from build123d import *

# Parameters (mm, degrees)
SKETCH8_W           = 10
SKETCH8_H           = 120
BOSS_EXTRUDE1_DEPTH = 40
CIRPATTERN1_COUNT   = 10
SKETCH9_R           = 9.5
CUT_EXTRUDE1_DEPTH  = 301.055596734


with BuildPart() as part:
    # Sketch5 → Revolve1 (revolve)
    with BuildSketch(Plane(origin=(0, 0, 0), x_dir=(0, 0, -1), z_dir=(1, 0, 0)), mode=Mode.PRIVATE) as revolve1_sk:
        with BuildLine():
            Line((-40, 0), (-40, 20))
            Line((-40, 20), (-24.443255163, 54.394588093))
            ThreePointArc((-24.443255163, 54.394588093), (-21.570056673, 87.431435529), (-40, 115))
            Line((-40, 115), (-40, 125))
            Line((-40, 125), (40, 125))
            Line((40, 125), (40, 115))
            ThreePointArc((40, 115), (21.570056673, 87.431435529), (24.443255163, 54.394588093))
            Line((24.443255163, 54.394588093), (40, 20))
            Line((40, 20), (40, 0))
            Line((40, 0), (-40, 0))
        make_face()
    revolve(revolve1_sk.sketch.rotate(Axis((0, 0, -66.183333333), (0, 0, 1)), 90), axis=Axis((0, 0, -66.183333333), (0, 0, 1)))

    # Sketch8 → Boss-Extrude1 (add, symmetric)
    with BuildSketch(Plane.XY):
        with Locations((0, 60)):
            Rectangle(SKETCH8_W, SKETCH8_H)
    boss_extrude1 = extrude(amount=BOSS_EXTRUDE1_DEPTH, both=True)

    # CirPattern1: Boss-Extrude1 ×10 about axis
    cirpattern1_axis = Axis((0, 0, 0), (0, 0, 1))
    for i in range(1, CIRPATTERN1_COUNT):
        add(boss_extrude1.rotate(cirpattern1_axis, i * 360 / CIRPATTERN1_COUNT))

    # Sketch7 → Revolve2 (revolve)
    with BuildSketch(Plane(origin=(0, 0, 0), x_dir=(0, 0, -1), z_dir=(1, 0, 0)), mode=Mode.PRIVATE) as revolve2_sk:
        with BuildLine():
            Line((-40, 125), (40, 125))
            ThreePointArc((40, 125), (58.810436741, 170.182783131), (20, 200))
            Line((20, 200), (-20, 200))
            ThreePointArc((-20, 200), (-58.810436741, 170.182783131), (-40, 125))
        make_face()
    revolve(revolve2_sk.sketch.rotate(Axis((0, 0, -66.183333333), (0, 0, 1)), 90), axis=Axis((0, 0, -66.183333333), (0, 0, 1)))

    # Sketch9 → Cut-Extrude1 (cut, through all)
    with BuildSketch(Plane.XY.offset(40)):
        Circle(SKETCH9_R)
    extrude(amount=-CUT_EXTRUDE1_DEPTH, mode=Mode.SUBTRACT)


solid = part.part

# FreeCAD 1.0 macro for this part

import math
import FreeCAD as App
import Part
import Sketcher
Q = App.Units.Quantity


def add_polygon(sketch, points):
    """Adds a closed chain of lines whose ends are joined by coincident constraints."""
    first, n = sketch.GeometryCount, len(points)
    for a, b in zip(points, points[1:] + points[:1]):
        sketch.addGeometry(Part.LineSegment(App.Vector(*a, 0), App.Vector(*b, 0)), False)
    for i in range(n):
        sketch.addConstraint(Sketcher.Constraint("Coincident", first + i, 2, first + (i + 1) % n, 1))

doc = App.newDocument("Part")
body = doc.addObject("PartDesign::Body", "Body")

# Sketch on YZ plane
sketch1 = doc.addObject("Sketcher::SketchObject", "Sketch")
body.addObject(sketch1)
sketch1.AttachmentSupport = (doc.YZ_Plane, [""])
sketch1.MapMode = "FlatFace"
sketch1.addGeometry(Part.LineSegment(App.Vector(20, 40, 0), App.Vector(0, 40, 0)), False)
sketch1.addGeometry(Part.LineSegment(App.Vector(0, 40, 0), App.Vector(0, -40, 0)), False)
sketch1.addGeometry(Part.LineSegment(App.Vector(0, -40, 0), App.Vector(20, -40, 0)), False)
sketch1.addGeometry(Part.LineSegment(App.Vector(20, -40, 0), App.Vector(54, -24, 0)), False)
sketch1.addGeometry(Part.ArcOfCircle(Part.Circle(App.Vector(75, -70, 0), App.Vector(0, 0, 1), 50), math.radians(37), math.radians(114)), False)
sketch1.addGeometry(Part.LineSegment(App.Vector(115, -40, 0), App.Vector(125, -40, 0)), False)
sketch1.addGeometry(Part.LineSegment(App.Vector(125, -40, 0), App.Vector(125, 40, 0)), False)
sketch1.addGeometry(Part.LineSegment(App.Vector(125, 40, 0), App.Vector(115, 40, 0)), False)
sketch1.addGeometry(Part.ArcOfCircle(Part.Circle(App.Vector(75, 70, 0), App.Vector(0, 0, 1), 50), math.radians(-114), math.radians(-37)), False)
sketch1.addGeometry(Part.LineSegment(App.Vector(54, 24, 0), App.Vector(20, 40, 0)), False)
sketch1.addConstraint(Sketcher.Constraint("Coincident", 0, 2, 1, 1))
sketch1.addConstraint(Sketcher.Constraint("Coincident", 1, 2, 2, 1))
sketch1.addConstraint(Sketcher.Constraint("Coincident", 2, 2, 3, 1))
sketch1.addConstraint(Sketcher.Constraint("Tangent", 3, 2, 4, 2))
sketch1.addConstraint(Sketcher.Constraint("Coincident", 4, 1, 5, 1))
sketch1.addConstraint(Sketcher.Constraint("Coincident", 5, 2, 6, 1))
sketch1.addConstraint(Sketcher.Constraint("Coincident", 6, 2, 7, 1))
sketch1.addConstraint(Sketcher.Constraint("Coincident", 7, 2, 8, 2))
sketch1.addConstraint(Sketcher.Constraint("Tangent", 8, 1, 9, 1))
sketch1.addConstraint(Sketcher.Constraint("Coincident", 9, 2, 0, 1))
sketch1.addConstraint(Sketcher.Constraint("Horizontal", 0))
sketch1.addConstraint(Sketcher.Constraint("Vertical", 1))
sketch1.addConstraint(Sketcher.Constraint("Horizontal", 2))
sketch1.addConstraint(Sketcher.Constraint("Horizontal", 5))
sketch1.addConstraint(Sketcher.Constraint("Vertical", 6))
sketch1.addConstraint(Sketcher.Constraint("Horizontal", 7))
sketch1.addConstraint(Sketcher.Constraint("Equal", 4, 8))
sketch1.addConstraint(Sketcher.Constraint("Symmetric", 0, 2, 1, 2, -1, 1))
sketch1.addConstraint(Sketcher.Constraint("Symmetric", 4, 3, 8, 3, -1))
sketch1.addConstraint(Sketcher.Constraint("Horizontal", 2, 2, 4, 1))
sketch1.addConstraint(Sketcher.Constraint("Horizontal", 0, 2, 6, 2))
sketch1.addConstraint(Sketcher.Constraint("Vertical", 3, 2, 8, 1))
sketch1.addConstraint(Sketcher.Constraint("Radius", 4, Q("50 mm")))
sketch1.addConstraint(Sketcher.Constraint("DistanceX", 0, 2, 0, 1, Q("20 mm")))
sketch1.addConstraint(Sketcher.Constraint("DistanceX", 5, 1, 5, 2, Q("10 mm")))
sketch1.addConstraint(Sketcher.Constraint("DistanceY", 1, 2, 1, 1, Q("80 mm")))
sketch1.addConstraint(Sketcher.Constraint("DistanceX", -1, 1, 4, 3, Q("75 mm")))
sketch1.addConstraint(Sketcher.Constraint("DistanceY", 4, 3, -1, 1, Q("70 mm")))
revolution = doc.addObject("PartDesign::Revolution", "Revolution")
body.addObject(revolution)
revolution.Profile = sketch1
revolution.ReferenceAxis = (sketch1, ["V_Axis"])
revolution.Angle = 360

# Sketch on XY plane
sketch2 = doc.addObject("Sketcher::SketchObject", "Sketch001")
body.addObject(sketch2)
sketch2.AttachmentSupport = (doc.XY_Plane, [""])
sketch2.MapMode = "FlatFace"
add_polygon(sketch2, [(-5, 120), (-5, 0), (5, 0), (5, 120)])  # lines 0-3
sketch2.addConstraint(Sketcher.Constraint("Vertical", 0))
sketch2.addConstraint(Sketcher.Constraint("Horizontal", 1))
sketch2.addConstraint(Sketcher.Constraint("Vertical", 2))
sketch2.addConstraint(Sketcher.Constraint("Horizontal", 3))
sketch2.addConstraint(Sketcher.Constraint("Symmetric", 0, 2, 1, 2, -1, 1))
sketch2.addConstraint(Sketcher.Constraint("DistanceX", 1, 1, 1, 2, Q("10 mm")))
sketch2.addConstraint(Sketcher.Constraint("DistanceY", 0, 2, 0, 1, Q("120 mm")))
pad1 = doc.addObject("PartDesign::Pad", "Pad")
body.addObject(pad1)
pad1.Profile = sketch2
pad1.Length = 80
pad1.Midplane = True
doc.recompute()

polarpattern = doc.addObject("PartDesign::PolarPattern", "PolarPattern")
body.addObject(polarpattern)
polarpattern.Originals = [pad1]
polarpattern.Axis = (doc.Z_Axis, [""])
polarpattern.Angle = 360
polarpattern.Occurrences = 10
body.Tip = polarpattern

# Sketch on YZ plane
sketch3 = doc.addObject("Sketcher::SketchObject", "Sketch002")
body.addObject(sketch3)
sketch3.AttachmentSupport = (doc.YZ_Plane, [""])
sketch3.MapMode = "FlatFace"
sketch3.addGeometry(Part.LineSegment(App.Vector(125, 40, 0), App.Vector(125, -40, 0)), False)
sketch3.addGeometry(Part.ArcOfCircle(Part.Circle(App.Vector(160, -20, 0), App.Vector(0, 0, 1), 40), math.radians(-150), math.radians(0)), False)
sketch3.addGeometry(Part.LineSegment(App.Vector(200, -20, 0), App.Vector(200, 20, 0)), False)
sketch3.addGeometry(Part.ArcOfCircle(Part.Circle(App.Vector(160, 20, 0), App.Vector(0, 0, 1), 40), math.radians(0), math.radians(150)), False)
sketch3.addConstraint(Sketcher.Constraint("Coincident", 0, 2, 1, 1))
sketch3.addConstraint(Sketcher.Constraint("Tangent", 1, 2, 2, 1))
sketch3.addConstraint(Sketcher.Constraint("Tangent", 2, 2, 3, 1))
sketch3.addConstraint(Sketcher.Constraint("Coincident", 3, 2, 0, 1))
sketch3.addConstraint(Sketcher.Constraint("Vertical", 0))
sketch3.addConstraint(Sketcher.Constraint("Vertical", 2))
sketch3.addConstraint(Sketcher.Constraint("Equal", 1, 3))
sketch3.addConstraint(Sketcher.Constraint("DistanceY", 0, 2, 0, 1, Q("80 mm")))
sketch3.addConstraint(Sketcher.Constraint("DistanceY", 2, 1, 2, 2, Q("40 mm")))
sketch3.addConstraint(Sketcher.Constraint("DistanceY", 1, 3, -1, 1, Q("20 mm")))
sketch3.addConstraint(Sketcher.Constraint("DistanceX", -1, 1, 0, 2, Q("125 mm")))
sketch3.addConstraint(Sketcher.Constraint("DistanceX", -1, 1, 1, 2, Q("200 mm")))
revolution2 = doc.addObject("PartDesign::Revolution", "Revolution001")
body.addObject(revolution2)
revolution2.Profile = sketch3
revolution2.ReferenceAxis = (sketch3, ["V_Axis"])
revolution2.Angle = 360

# Sketch on XY plane
sketch4 = doc.addObject("Sketcher::SketchObject", "Sketch003")
body.addObject(sketch4)
sketch4.AttachmentSupport = (doc.XY_Plane, [""])
sketch4.MapMode = "FlatFace"
sketch4.AttachmentOffset = App.Placement(App.Vector(0, 0, 40), App.Rotation())
sketch4.addGeometry(Part.Circle(App.Vector(0, 0, 0), App.Vector(0, 0, 1), 10), False)
sketch4.addConstraint(Sketcher.Constraint("Coincident", 0, 3, -1, 1))
sketch4.addConstraint(Sketcher.Constraint("Diameter", 0, Q("19 mm")))
pocket1 = doc.addObject("PartDesign::Pocket", "Pocket")
body.addObject(pocket1)
pocket1.Profile = sketch4
pocket1.Type = "ThroughAll"

doc.recompute()
